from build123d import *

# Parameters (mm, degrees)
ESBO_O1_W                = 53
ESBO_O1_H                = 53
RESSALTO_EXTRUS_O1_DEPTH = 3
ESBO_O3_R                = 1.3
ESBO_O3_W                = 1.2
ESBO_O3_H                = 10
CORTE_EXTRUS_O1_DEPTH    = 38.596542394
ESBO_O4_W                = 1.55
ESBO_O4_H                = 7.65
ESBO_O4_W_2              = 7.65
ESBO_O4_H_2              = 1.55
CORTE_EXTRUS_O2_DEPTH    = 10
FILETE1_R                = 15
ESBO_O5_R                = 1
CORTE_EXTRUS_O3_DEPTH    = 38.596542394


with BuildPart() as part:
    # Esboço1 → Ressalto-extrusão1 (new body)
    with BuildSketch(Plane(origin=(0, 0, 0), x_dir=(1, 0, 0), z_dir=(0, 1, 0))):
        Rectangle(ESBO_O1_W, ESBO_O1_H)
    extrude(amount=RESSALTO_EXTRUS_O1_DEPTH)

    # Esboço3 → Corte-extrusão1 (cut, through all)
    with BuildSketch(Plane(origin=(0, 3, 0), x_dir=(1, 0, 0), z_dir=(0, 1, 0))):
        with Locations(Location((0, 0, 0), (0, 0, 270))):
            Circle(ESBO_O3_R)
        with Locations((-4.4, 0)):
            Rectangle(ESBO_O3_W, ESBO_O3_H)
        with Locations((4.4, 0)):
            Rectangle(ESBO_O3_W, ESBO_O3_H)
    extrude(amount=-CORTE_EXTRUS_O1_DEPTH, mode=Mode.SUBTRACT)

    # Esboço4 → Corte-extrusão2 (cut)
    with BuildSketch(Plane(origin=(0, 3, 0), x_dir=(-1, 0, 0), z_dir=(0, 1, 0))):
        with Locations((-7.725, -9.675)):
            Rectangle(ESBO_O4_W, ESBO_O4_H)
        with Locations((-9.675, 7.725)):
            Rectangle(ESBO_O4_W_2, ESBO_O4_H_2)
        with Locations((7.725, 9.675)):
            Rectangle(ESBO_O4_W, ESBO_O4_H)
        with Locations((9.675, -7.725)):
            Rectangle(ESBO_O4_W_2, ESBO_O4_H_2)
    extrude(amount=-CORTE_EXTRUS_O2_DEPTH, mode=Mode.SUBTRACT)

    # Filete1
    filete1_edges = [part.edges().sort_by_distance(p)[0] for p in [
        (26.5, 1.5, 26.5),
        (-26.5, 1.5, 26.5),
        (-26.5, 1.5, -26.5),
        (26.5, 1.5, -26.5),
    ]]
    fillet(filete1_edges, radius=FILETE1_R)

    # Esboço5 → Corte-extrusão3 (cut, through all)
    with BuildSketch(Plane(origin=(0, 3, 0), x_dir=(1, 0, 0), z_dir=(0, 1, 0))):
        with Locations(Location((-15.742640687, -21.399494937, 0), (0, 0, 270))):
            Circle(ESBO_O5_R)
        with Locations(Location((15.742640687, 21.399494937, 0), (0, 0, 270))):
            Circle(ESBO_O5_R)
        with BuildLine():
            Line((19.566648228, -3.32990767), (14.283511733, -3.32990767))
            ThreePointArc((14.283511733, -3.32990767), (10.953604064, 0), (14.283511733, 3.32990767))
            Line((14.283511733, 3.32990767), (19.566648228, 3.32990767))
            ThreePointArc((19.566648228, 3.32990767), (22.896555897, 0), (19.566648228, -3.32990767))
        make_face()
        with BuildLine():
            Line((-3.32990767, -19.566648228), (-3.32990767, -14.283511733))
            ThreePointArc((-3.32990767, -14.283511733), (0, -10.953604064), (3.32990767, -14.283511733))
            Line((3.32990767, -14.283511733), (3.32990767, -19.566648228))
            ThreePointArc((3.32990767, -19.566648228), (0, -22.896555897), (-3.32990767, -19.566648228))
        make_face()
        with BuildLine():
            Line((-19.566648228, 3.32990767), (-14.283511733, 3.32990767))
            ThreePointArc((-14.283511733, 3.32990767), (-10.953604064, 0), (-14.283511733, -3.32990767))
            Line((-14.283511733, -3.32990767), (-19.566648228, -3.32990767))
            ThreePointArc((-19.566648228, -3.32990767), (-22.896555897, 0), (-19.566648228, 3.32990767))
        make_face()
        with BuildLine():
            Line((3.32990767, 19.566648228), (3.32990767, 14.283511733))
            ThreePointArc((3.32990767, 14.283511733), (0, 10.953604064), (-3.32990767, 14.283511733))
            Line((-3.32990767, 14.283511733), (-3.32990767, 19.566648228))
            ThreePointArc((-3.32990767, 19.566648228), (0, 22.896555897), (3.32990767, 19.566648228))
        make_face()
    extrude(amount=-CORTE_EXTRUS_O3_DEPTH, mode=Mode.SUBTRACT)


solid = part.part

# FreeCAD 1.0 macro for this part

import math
import FreeCAD as App
import Part
import Sketcher
from FreeCAD import Vector
Q = App.Units.Quantity


def edges_at(feature, points):
    """Names of the edges that pass closest to the given points."""
    edges = feature.Shape.Edges
    near = lambda p: min(range(len(edges)), key=lambda i: edges[i].distToShape(Part.Vertex(*p))[0])
    return sorted({f"Edge{near(p) + 1}" for p in points})

doc = App.newDocument("Part")
body = doc.addObject("PartDesign::Body", "Body")

# Sketch on XZ plane
sketch1 = body.newObject("Sketcher::SketchObject", "Sketch")
sketch1.AttachmentSupport = (doc.getObject("XZ_Plane"), [""])
sketch1.MapMode = "FlatFace"
sketch1.addGeometry(Part.LineSegment(Vector(-26, -26, 0), Vector(-26, 26, 0)), False)
sketch1.addGeometry(Part.LineSegment(Vector(-26, 26, 0), Vector(26, 26, 0)), False)
sketch1.addGeometry(Part.LineSegment(Vector(26, 26, 0), Vector(26, -26, 0)), False)
sketch1.addGeometry(Part.LineSegment(Vector(26, -26, 0), Vector(-26, -26, 0)), False)
sketch1.addConstraint(Sketcher.Constraint("Coincident", 0, 2, 1, 1))
sketch1.addConstraint(Sketcher.Constraint("Coincident", 1, 2, 2, 1))
sketch1.addConstraint(Sketcher.Constraint("Coincident", 2, 2, 3, 1))
sketch1.addConstraint(Sketcher.Constraint("Coincident", 3, 2, 0, 1))
sketch1.addConstraint(Sketcher.Constraint("Vertical", 0))
sketch1.addConstraint(Sketcher.Constraint("Horizontal", 1))
sketch1.addConstraint(Sketcher.Constraint("Vertical", 2))
sketch1.addConstraint(Sketcher.Constraint("Horizontal", 3))
sketch1.addConstraint(Sketcher.Constraint("Symmetric", 0, 2, 2, 2, -1, 1))
sketch1.addConstraint(Sketcher.Constraint("Equal", 3, 0))
sketch1.addConstraint(Sketcher.Constraint("DistanceX", 1, 1, 1, 2, Q("53 mm")))
pad1 = body.newObject("PartDesign::Pad", "Pad")
pad1.Profile = sketch1
pad1.Length = 3
pad1.Reversed = True

# Sketch on XZ plane
sketch2 = body.newObject("Sketcher::SketchObject", "Sketch001")
sketch2.AttachmentSupport = (doc.getObject("XZ_Plane"), [""])
sketch2.MapMode = "FlatFace"
sketch2.AttachmentOffset = App.Placement(Vector(0, 0, -3), App.Rotation())
sketch2.addGeometry(Part.Circle(Vector(0, 0, 0), Vector(0, 0, 1), 1.3), False)
sketch2.addGeometry(Part.LineSegment(Vector(-5, -5, 0), Vector(-5, 5, 0)), False)
sketch2.addGeometry(Part.LineSegment(Vector(-5, 5, 0), Vector(-3.8, 5, 0)), False)
sketch2.addGeometry(Part.LineSegment(Vector(-3.8, 5, 0), Vector(-3.8, -5, 0)), False)
sketch2.addGeometry(Part.LineSegment(Vector(-3.8, -5, 0), Vector(-5, -5, 0)), False)
sketch2.addGeometry(Part.LineSegment(Vector(3.8, -5, 0), Vector(3.8, 5, 0)), False)
sketch2.addGeometry(Part.LineSegment(Vector(3.8, 5, 0), Vector(5, 5, 0)), False)
sketch2.addGeometry(Part.LineSegment(Vector(5, 5, 0), Vector(5, -5, 0)), False)
sketch2.addGeometry(Part.LineSegment(Vector(5, -5, 0), Vector(3.8, -5, 0)), False)
sketch2.addConstraint(Sketcher.Constraint("Coincident", 1, 2, 2, 1))
sketch2.addConstraint(Sketcher.Constraint("Coincident", 2, 2, 3, 1))
sketch2.addConstraint(Sketcher.Constraint("Coincident", 3, 2, 4, 1))
sketch2.addConstraint(Sketcher.Constraint("Coincident", 4, 2, 1, 1))
sketch2.addConstraint(Sketcher.Constraint("Coincident", 5, 2, 6, 1))
sketch2.addConstraint(Sketcher.Constraint("Coincident", 6, 2, 7, 1))
sketch2.addConstraint(Sketcher.Constraint("Coincident", 7, 2, 8, 1))
sketch2.addConstraint(Sketcher.Constraint("Coincident", 8, 2, 5, 1))
sketch2.addConstraint(Sketcher.Constraint("Vertical", 1))
sketch2.addConstraint(Sketcher.Constraint("Horizontal", 2))
sketch2.addConstraint(Sketcher.Constraint("Vertical", 3))
sketch2.addConstraint(Sketcher.Constraint("Horizontal", 4))
sketch2.addConstraint(Sketcher.Constraint("Vertical", 5))
sketch2.addConstraint(Sketcher.Constraint("Horizontal", 6))
sketch2.addConstraint(Sketcher.Constraint("Vertical", 7))
sketch2.addConstraint(Sketcher.Constraint("Horizontal", 8))
sketch2.addConstraint(Sketcher.Constraint("Coincident", 0, 3, -1, 1))
sketch2.addConstraint(Sketcher.Constraint("Symmetric", 3, 2, 5, 2, -1, 1))
sketch2.addConstraint(Sketcher.Constraint("Symmetric", 1, 2, 7, 2, -1, 1))
sketch2.addConstraint(Sketcher.Constraint("Horizontal", 2, 2, 5, 2))
sketch2.addConstraint(Sketcher.Constraint("Diameter", 0, Q("2.6 mm")))
sketch2.addConstraint(Sketcher.Constraint("DistanceY", 1, 1, 1, 2, Q("10 mm")))
sketch2.addConstraint(Sketcher.Constraint("DistanceX", 2, 1, 2, 2, Q("1.2 mm")))
sketch2.addConstraint(Sketcher.Constraint("DistanceX", 1, 2, -1, 1, Q("5 mm")))
pocket1 = body.newObject("PartDesign::Pocket", "Pocket")
pocket1.Profile = sketch2
pocket1.Type = "ThroughAll"
pocket1.Reversed = True

# Sketch on XZ plane
sketch3 = body.newObject("Sketcher::SketchObject", "Sketch002")
sketch3.AttachmentSupport = (doc.getObject("XZ_Plane"), [""])
sketch3.MapMode = "FlatFace"
sketch3.AttachmentOffset = App.Placement(Vector(0, 0, -3), App.Rotation())
sketch3.addGeometry(Part.LineSegment(Vector(8.5, -5.8, 0), Vector(8.5, -13.5, 0)), False)
sketch3.addGeometry(Part.LineSegment(Vector(8.5, -13.5, 0), Vector(7, -13.5, 0)), False)
sketch3.addGeometry(Part.LineSegment(Vector(7, -13.5, 0), Vector(7, -5.8, 0)), False)
sketch3.addGeometry(Part.LineSegment(Vector(7, -5.8, 0), Vector(8.5, -5.8, 0)), False)
sketch3.addGeometry(Part.LineSegment(Vector(13.5, 8.5, 0), Vector(13.5, 7, 0)), False)
sketch3.addGeometry(Part.LineSegment(Vector(13.5, 7, 0), Vector(5.8, 7, 0)), False)
sketch3.addGeometry(Part.LineSegment(Vector(5.8, 7, 0), Vector(5.8, 8.5, 0)), False)
sketch3.addGeometry(Part.LineSegment(Vector(5.8, 8.5, 0), Vector(13.5, 8.5, 0)), False)
sketch3.addGeometry(Part.LineSegment(Vector(-7, 13.5, 0), Vector(-7, 5.8, 0)), False)
sketch3.addGeometry(Part.LineSegment(Vector(-7, 5.8, 0), Vector(-8.5, 5.8, 0)), False)
sketch3.addGeometry(Part.LineSegment(Vector(-8.5, 5.8, 0), Vector(-8.5, 13.5, 0)), False)
sketch3.addGeometry(Part.LineSegment(Vector(-8.5, 13.5, 0), Vector(-7, 13.5, 0)), False)
sketch3.addGeometry(Part.LineSegment(Vector(-5.8, -7, 0), Vector(-5.8, -8.5, 0)), False)
sketch3.addGeometry(Part.LineSegment(Vector(-5.8, -8.5, 0), Vector(-13.5, -8.5, 0)), False)
sketch3.addGeometry(Part.LineSegment(Vector(-13.5, -8.5, 0), Vector(-13.5, -7, 0)), False)
sketch3.addGeometry(Part.LineSegment(Vector(-13.5, -7, 0), Vector(-5.8, -7, 0)), False)
sketch3.addConstraint(Sketcher.Constraint("Coincident", 0, 2, 1, 1))
sketch3.addConstraint(Sketcher.Constraint("Coincident", 1, 2, 2, 1))
sketch3.addConstraint(Sketcher.Constraint("Coincident", 2, 2, 3, 1))
sketch3.addConstraint(Sketcher.Constraint("Coincident", 3, 2, 0, 1))
sketch3.addConstraint(Sketcher.Constraint("Coincident", 4, 2, 5, 1))
sketch3.addConstraint(Sketcher.Constraint("Coincident", 5, 2, 6, 1))
sketch3.addConstraint(Sketcher.Constraint("Coincident", 6, 2, 7, 1))
sketch3.addConstraint(Sketcher.Constraint("Coincident", 7, 2, 4, 1))
sketch3.addConstraint(Sketcher.Constraint("Coincident", 8, 2, 9, 1))
sketch3.addConstraint(Sketcher.Constraint("Coincident", 9, 2, 10, 1))
sketch3.addConstraint(Sketcher.Constraint("Coincident", 10, 2, 11, 1))
sketch3.addConstraint(Sketcher.Constraint("Coincident", 11, 2, 8, 1))
sketch3.addConstraint(Sketcher.Constraint("Coincident", 12, 2, 13, 1))
sketch3.addConstraint(Sketcher.Constraint("Coincident", 13, 2, 14, 1))
sketch3.addConstraint(Sketcher.Constraint("Coincident", 14, 2, 15, 1))
sketch3.addConstraint(Sketcher.Constraint("Coincident", 15, 2, 12, 1))
sketch3.addConstraint(Sketcher.Constraint("Vertical", 0))
sketch3.addConstraint(Sketcher.Constraint("Horizontal", 1))
sketch3.addConstraint(Sketcher.Constraint("Vertical", 2))
sketch3.addConstraint(Sketcher.Constraint("Horizontal", 3))
sketch3.addConstraint(Sketcher.Constraint("Vertical", 4))
sketch3.addConstraint(Sketcher.Constraint("Horizontal", 5))
sketch3.addConstraint(Sketcher.Constraint("Vertical", 6))
sketch3.addConstraint(Sketcher.Constraint("Horizontal", 7))
sketch3.addConstraint(Sketcher.Constraint("Vertical", 8))
sketch3.addConstraint(Sketcher.Constraint("Horizontal", 9))
sketch3.addConstraint(Sketcher.Constraint("Vertical", 10))
sketch3.addConstraint(Sketcher.Constraint("Horizontal", 11))
sketch3.addConstraint(Sketcher.Constraint("Vertical", 12))
sketch3.addConstraint(Sketcher.Constraint("Horizontal", 13))
sketch3.addConstraint(Sketcher.Constraint("Vertical", 14))
sketch3.addConstraint(Sketcher.Constraint("Horizontal", 15))
sketch3.addConstraint(Sketcher.Constraint("Symmetric", 2, 2, 8, 2, -1, 1))
sketch3.addConstraint(Sketcher.Constraint("Symmetric", 0, 2, 10, 2, -1, 1))
sketch3.addConstraint(Sketcher.Constraint("Symmetric", 6, 2, 12, 2, -1, 1))
sketch3.addConstraint(Sketcher.Constraint("Symmetric", 4, 2, 14, 2, -1, 1))
sketch3.addConstraint(Sketcher.Constraint("Equal", 15, 0))
sketch3.addConstraint(Sketcher.Constraint("Equal", 11, 4))
sketch3.addConstraint(Sketcher.Constraint("DistanceX", 3, 2, 4, 2, Q("5 mm")))
sketch3.addConstraint(Sketcher.Constraint("DistanceY", 1, 2, 6, 2, Q("22 mm")))
sketch3.addConstraint(Sketcher.Constraint("DistanceX", 9, 2, 3, 2, Q("17 mm")))
sketch3.addConstraint(Sketcher.Constraint("DistanceY", 6, 2, 10, 2, Q("5 mm")))
sketch3.addConstraint(Sketcher.Constraint("DistanceX", 1, 2, 1, 1, Q("1.55 mm")))
sketch3.addConstraint(Sketcher.Constraint("DistanceX", 5, 2, 5, 1, Q("7.65 mm")))
pocket2 = body.newObject("PartDesign::Pocket", "Pocket001")
pocket2.Profile = sketch3
pocket2.Length = 10
pocket2.Reversed = True
doc.recompute()

fillet = body.newObject("PartDesign::Fillet", "Fillet")
fillet.Base = (pocket2, edges_at(pocket2, [
    (26.5, 1.5, 26.5),
    (-26.5, 1.5, 26.5),
    (-26.5, 1.5, -26.5),
    (26.5, 1.5, -26.5),
]))
fillet.Radius = 15

# Sketch on XZ plane
sketch4 = body.newObject("Sketcher::SketchObject", "Sketch003")
sketch4.AttachmentSupport = (doc.getObject("XZ_Plane"), [""])
sketch4.MapMode = "FlatFace"
sketch4.AttachmentOffset = App.Placement(Vector(0, 0, -3), App.Rotation())
sketch4.addGeometry(Part.Circle(Vector(-15.7, 21.4, 0), Vector(0, 0, 1), 1), False)
sketch4.addGeometry(Part.Circle(Vector(15.7, -21.4, 0), Vector(0, 0, 1), 1), False)
sketch4.addGeometry(Part.LineSegment(Vector(14.3, 3.3, 0), Vector(19.6, 3.3, 0)), False)
sketch4.addGeometry(Part.ArcOfCircle(Part.Circle(Vector(19.6, 0, 0), Vector(0, 0, 1), 3.3), math.radians(-90), math.radians(90)), False)
sketch4.addGeometry(Part.LineSegment(Vector(19.6, -3.3, 0), Vector(14.3, -3.3, 0)), False)
sketch4.addGeometry(Part.ArcOfCircle(Part.Circle(Vector(14.3, 0, 0), Vector(0, 0, 1), 3.3), math.radians(90), math.radians(270)), False)
sketch4.addGeometry(Part.LineSegment(Vector(-3.3, 14.3, 0), Vector(-3.3, 19.6, 0)), False)
sketch4.addGeometry(Part.ArcOfCircle(Part.Circle(Vector(0, 19.6, 0), Vector(0, 0, 1), 3.3), math.radians(0), math.radians(180)), False)
sketch4.addGeometry(Part.LineSegment(Vector(3.3, 19.6, 0), Vector(3.3, 14.3, 0)), False)
sketch4.addGeometry(Part.ArcOfCircle(Part.Circle(Vector(0, 14.3, 0), Vector(0, 0, 1), 3.3), math.radians(-180), math.radians(0)), False)
sketch4.addGeometry(Part.LineSegment(Vector(-14.3, -3.3, 0), Vector(-19.6, -3.3, 0)), False)
sketch4.addGeometry(Part.ArcOfCircle(Part.Circle(Vector(-19.6, 0, 0), Vector(0, 0, 1), 3.3), math.radians(90), math.radians(270)), False)
sketch4.addGeometry(Part.LineSegment(Vector(-19.6, 3.3, 0), Vector(-14.3, 3.3, 0)), False)
sketch4.addGeometry(Part.ArcOfCircle(Part.Circle(Vector(-14.3, 0, 0), Vector(0, 0, 1), 3.3), math.radians(-90), math.radians(90)), False)
sketch4.addGeometry(Part.LineSegment(Vector(3.3, -14.3, 0), Vector(3.3, -19.6, 0)), False)
sketch4.addGeometry(Part.ArcOfCircle(Part.Circle(Vector(0, -19.6, 0), Vector(0, 0, 1), 3.3), math.radians(-180), math.radians(0)), False)
sketch4.addGeometry(Part.LineSegment(Vector(-3.3, -19.6, 0), Vector(-3.3, -14.3, 0)), False)
sketch4.addGeometry(Part.ArcOfCircle(Part.Circle(Vector(0, -14.3, 0), Vector(0, 0, 1), 3.3), math.radians(0), math.radians(180)), False)
sketch4.addConstraint(Sketcher.Constraint("Tangent", 2, 2, 3, 2))
sketch4.addConstraint(Sketcher.Constraint("Tangent", 3, 1, 4, 1))
sketch4.addConstraint(Sketcher.Constraint("Tangent", 4, 2, 5, 2))
sketch4.addConstraint(Sketcher.Constraint("Tangent", 5, 1, 2, 1))
sketch4.addConstraint(Sketcher.Constraint("Tangent", 6, 2, 7, 2))
sketch4.addConstraint(Sketcher.Constraint("Tangent", 7, 1, 8, 1))
sketch4.addConstraint(Sketcher.Constraint("Tangent", 8, 2, 9, 2))
sketch4.addConstraint(Sketcher.Constraint("Tangent", 9, 1, 6, 1))
sketch4.addConstraint(Sketcher.Constraint("Tangent", 10, 2, 11, 2))
sketch4.addConstraint(Sketcher.Constraint("Tangent", 11, 1, 12, 1))
sketch4.addConstraint(Sketcher.Constraint("Tangent", 12, 2, 13, 2))
sketch4.addConstraint(Sketcher.Constraint("Tangent", 13, 1, 10, 1))
sketch4.addConstraint(Sketcher.Constraint("Tangent", 14, 2, 15, 2))
sketch4.addConstraint(Sketcher.Constraint("Tangent", 15, 1, 16, 1))
sketch4.addConstraint(Sketcher.Constraint("Tangent", 16, 2, 17, 2))
sketch4.addConstraint(Sketcher.Constraint("Tangent", 17, 1, 14, 1))
sketch4.addConstraint(Sketcher.Constraint("Horizontal", 2))
sketch4.addConstraint(Sketcher.Constraint("Horizontal", 4))
sketch4.addConstraint(Sketcher.Constraint("Vertical", 6))
sketch4.addConstraint(Sketcher.Constraint("Vertical", 8))
sketch4.addConstraint(Sketcher.Constraint("Horizontal", 10))
sketch4.addConstraint(Sketcher.Constraint("Horizontal", 12))
sketch4.addConstraint(Sketcher.Constraint("Vertical", 14))
sketch4.addConstraint(Sketcher.Constraint("Vertical", 16))
sketch4.addConstraint(Sketcher.Constraint("Equal", 0, 1))
sketch4.addConstraint(Sketcher.Constraint("Equal", 5, 7))
sketch4.addConstraint(Sketcher.Constraint("Equal", 9, 11))
sketch4.addConstraint(Sketcher.Constraint("Equal", 13, 15))
sketch4.addConstraint(Sketcher.Constraint("Symmetric", 0, 3, 1, 3, -1, 1))
sketch4.addConstraint(Sketcher.Constraint("Symmetric", 3, 3, 11, 3, -1, 1))
sketch4.addConstraint(Sketcher.Constraint("Symmetric", 7, 3, 15, 3, -1, 1))
sketch4.addConstraint(Sketcher.Constraint("Symmetric", 5, 3, 13, 3, -2))
sketch4.addConstraint(Sketcher.Constraint("Symmetric", 9, 3, 17, 3, -1))
sketch4.addConstraint(Sketcher.Constraint("Equal", 12, 6))
sketch4.addConstraint(Sketcher.Constraint("Diameter", 0, Q("2 mm")))
sketch4.addConstraint(Sketcher.Constraint("Radius", 3, Q("3.329908 mm")))
sketch4.addConstraint(Sketcher.Constraint("DistanceX", 2, 1, 2, 2, Q("5.283136 mm")))
sketch4.addConstraint(Sketcher.Constraint("DistanceX", 0, 3, -1, 1, Q("15.742641 mm")))
sketch4.addConstraint(Sketcher.Constraint("DistanceX", -1, 1, 3, 3, Q("19.566648 mm")))
sketch4.addConstraint(Sketcher.Constraint("DistanceY", -1, 1, 7, 3, Q("19.566648 mm")))
sketch4.addConstraint(Sketcher.Constraint("DistanceY", 1, 3, 0, 3, Q("42.79899 mm")))
pocket3 = body.newObject("PartDesign::Pocket", "Pocket002")
pocket3.Profile = sketch4
pocket3.Type = "ThroughAll"
pocket3.Reversed = True

doc.recompute()
